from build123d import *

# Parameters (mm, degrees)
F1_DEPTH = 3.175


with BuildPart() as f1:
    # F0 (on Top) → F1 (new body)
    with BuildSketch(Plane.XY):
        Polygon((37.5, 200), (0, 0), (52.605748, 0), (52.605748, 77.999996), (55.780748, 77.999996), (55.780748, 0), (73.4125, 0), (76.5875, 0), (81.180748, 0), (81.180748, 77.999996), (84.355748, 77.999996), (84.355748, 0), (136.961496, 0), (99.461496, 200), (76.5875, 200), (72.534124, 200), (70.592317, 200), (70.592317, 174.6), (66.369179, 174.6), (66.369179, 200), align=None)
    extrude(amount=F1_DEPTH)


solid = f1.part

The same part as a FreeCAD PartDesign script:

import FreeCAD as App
import Part
import Sketcher
from FreeCAD import Vector
Q = App.Units.Quantity

doc = App.newDocument("Part")
body = doc.addObject("PartDesign::Body", "Body")

sketch1 = doc.addObject("Sketcher::SketchObject", "Sketch")
body.addObject(sketch1)
sketch1.AttachmentSupport = (doc.XY_Plane, [""])
sketch1.MapMode = "FlatFace"
sketch1.addGeometry([
    Part.LineSegment(Vector(37.5, 200, 0), Vector(0, 0, 0)),
    Part.LineSegment(Vector(0, 0, 0), Vector(52.605748, 0, 0)),
    Part.LineSegment(Vector(52.605748, 0, 0), Vector(52.605748, 77.999996, 0)),
    Part.LineSegment(Vector(52.605748, 77.999996, 0), Vector(55.780748, 77.999996, 0)),
    Part.LineSegment(Vector(55.780748, 77.999996, 0), Vector(55.780748, 0, 0)),
    Part.LineSegment(Vector(55.780748, 0, 0), Vector(81.180748, 0, 0)),
    Part.LineSegment(Vector(81.180748, 0, 0), Vector(81.180748, 77.999996, 0)),
    Part.LineSegment(Vector(81.180748, 77.999996, 0), Vector(84.355748, 77.999996, 0)),
    Part.LineSegment(Vector(84.355748, 77.999996, 0), Vector(84.355748, 0, 0)),
    Part.LineSegment(Vector(84.355748, 0, 0), Vector(136.961496, 0, 0)),
    Part.LineSegment(Vector(136.961496, 0, 0), Vector(99.461496, 200, 0)),
    Part.LineSegment(Vector(99.461496, 200, 0), Vector(70.592317, 200, 0)),
    Part.LineSegment(Vector(70.592317, 200, 0), Vector(70.592317, 174.6, 0)),
    Part.LineSegment(Vector(70.592317, 174.6, 0), Vector(66.369179, 174.6, 0)),
    Part.LineSegment(Vector(66.369179, 174.6, 0), Vector(66.369179, 200, 0)),
    Part.LineSegment(Vector(66.369179, 200, 0), Vector(37.5, 200, 0)),
], False)
sketch1.addConstraint([
    Sketcher.Constraint("Coincident", 0, 2, 1, 1),
    Sketcher.Constraint("Coincident", 1, 2, 2, 1),
    Sketcher.Constraint("Coincident", 2, 2, 3, 1),
    Sketcher.Constraint("Coincident", 3, 2, 4, 1),
    Sketcher.Constraint("Coincident", 4, 2, 5, 1),
    Sketcher.Constraint("Coincident", 5, 2, 6, 1),
    Sketcher.Constraint("Coincident", 6, 2, 7, 1),
    Sketcher.Constraint("Coincident", 7, 2, 8, 1),
    Sketcher.Constraint("Coincident", 8, 2, 9, 1),
    Sketcher.Constraint("Coincident", 9, 2, 10, 1),
    Sketcher.Constraint("Coincident", 10, 2, 11, 1),
    Sketcher.Constraint("Coincident", 11, 2, 12, 1),
    Sketcher.Constraint("Coincident", 12, 2, 13, 1),
    Sketcher.Constraint("Coincident", 13, 2, 14, 1),
    Sketcher.Constraint("Coincident", 14, 2, 15, 1),
    Sketcher.Constraint("Coincident", 15, 2, 0, 1),
    Sketcher.Constraint("Horizontal", 1),
    Sketcher.Constraint("Vertical", 2),
    Sketcher.Constraint("Horizontal", 3),
    Sketcher.Constraint("Vertical", 4),
    Sketcher.Constraint("Horizontal", 5),
    Sketcher.Constraint("Vertical", 6),
    Sketcher.Constraint("Horizontal", 7),
    Sketcher.Constraint("Vertical", 8),
    Sketcher.Constraint("Horizontal", 9),
    Sketcher.Constraint("Horizontal", 11),
    Sketcher.Constraint("Vertical", 12),
    Sketcher.Constraint("Horizontal", 13),
    Sketcher.Constraint("Vertical", 14),
    Sketcher.Constraint("Horizontal", 15),
    Sketcher.Constraint("Coincident", 0, 2, -1, 1),
    Sketcher.Constraint("PointOnObject", 4, 2, -1),
    Sketcher.Constraint("PointOnObject", 8, 2, -1),
    Sketcher.Constraint("Horizontal", 3, 2, 6, 2),
    Sketcher.Constraint("Horizontal", 11, 2, 14, 2),
    Sketcher.Constraint("Equal", 3, 7),
    Sketcher.Constraint("Equal", 1, 9),
    Sketcher.Constraint("Equal", 11, 15),
    Sketcher.Constraint("Equal", 5, 12),
    Sketcher.Constraint("Equal", 0, 10),
    Sketcher.Constraint("DistanceX", 5, 1, 5, 2, Q("1 in")),
    Sketcher.Constraint("DistanceX", 3, 1, 3, 2, Q("0.125 in")),
    Sketcher.Constraint("DistanceX", 9, 1, 9, 2, Q("52.605748 mm")),
    Sketcher.Constraint("DistanceX", 11, 2, 11, 1, Q("28.869179 mm")),
    Sketcher.Constraint("DistanceY", -1, 1, 10, 2, Q("200 mm")),
    Sketcher.Constraint("DistanceX", -1, 1, 15, 2, Q("37.5 mm")),
    Sketcher.Constraint("DistanceY", 2, 1, 2, 2, Q("77.999996 mm")),
])
pad1 = doc.addObject("PartDesign::Pad", "Pad")
body.addObject(pad1)
pad1.Profile = sketch1
pad1.Length = Q("0.125 in")

doc.recompute()
